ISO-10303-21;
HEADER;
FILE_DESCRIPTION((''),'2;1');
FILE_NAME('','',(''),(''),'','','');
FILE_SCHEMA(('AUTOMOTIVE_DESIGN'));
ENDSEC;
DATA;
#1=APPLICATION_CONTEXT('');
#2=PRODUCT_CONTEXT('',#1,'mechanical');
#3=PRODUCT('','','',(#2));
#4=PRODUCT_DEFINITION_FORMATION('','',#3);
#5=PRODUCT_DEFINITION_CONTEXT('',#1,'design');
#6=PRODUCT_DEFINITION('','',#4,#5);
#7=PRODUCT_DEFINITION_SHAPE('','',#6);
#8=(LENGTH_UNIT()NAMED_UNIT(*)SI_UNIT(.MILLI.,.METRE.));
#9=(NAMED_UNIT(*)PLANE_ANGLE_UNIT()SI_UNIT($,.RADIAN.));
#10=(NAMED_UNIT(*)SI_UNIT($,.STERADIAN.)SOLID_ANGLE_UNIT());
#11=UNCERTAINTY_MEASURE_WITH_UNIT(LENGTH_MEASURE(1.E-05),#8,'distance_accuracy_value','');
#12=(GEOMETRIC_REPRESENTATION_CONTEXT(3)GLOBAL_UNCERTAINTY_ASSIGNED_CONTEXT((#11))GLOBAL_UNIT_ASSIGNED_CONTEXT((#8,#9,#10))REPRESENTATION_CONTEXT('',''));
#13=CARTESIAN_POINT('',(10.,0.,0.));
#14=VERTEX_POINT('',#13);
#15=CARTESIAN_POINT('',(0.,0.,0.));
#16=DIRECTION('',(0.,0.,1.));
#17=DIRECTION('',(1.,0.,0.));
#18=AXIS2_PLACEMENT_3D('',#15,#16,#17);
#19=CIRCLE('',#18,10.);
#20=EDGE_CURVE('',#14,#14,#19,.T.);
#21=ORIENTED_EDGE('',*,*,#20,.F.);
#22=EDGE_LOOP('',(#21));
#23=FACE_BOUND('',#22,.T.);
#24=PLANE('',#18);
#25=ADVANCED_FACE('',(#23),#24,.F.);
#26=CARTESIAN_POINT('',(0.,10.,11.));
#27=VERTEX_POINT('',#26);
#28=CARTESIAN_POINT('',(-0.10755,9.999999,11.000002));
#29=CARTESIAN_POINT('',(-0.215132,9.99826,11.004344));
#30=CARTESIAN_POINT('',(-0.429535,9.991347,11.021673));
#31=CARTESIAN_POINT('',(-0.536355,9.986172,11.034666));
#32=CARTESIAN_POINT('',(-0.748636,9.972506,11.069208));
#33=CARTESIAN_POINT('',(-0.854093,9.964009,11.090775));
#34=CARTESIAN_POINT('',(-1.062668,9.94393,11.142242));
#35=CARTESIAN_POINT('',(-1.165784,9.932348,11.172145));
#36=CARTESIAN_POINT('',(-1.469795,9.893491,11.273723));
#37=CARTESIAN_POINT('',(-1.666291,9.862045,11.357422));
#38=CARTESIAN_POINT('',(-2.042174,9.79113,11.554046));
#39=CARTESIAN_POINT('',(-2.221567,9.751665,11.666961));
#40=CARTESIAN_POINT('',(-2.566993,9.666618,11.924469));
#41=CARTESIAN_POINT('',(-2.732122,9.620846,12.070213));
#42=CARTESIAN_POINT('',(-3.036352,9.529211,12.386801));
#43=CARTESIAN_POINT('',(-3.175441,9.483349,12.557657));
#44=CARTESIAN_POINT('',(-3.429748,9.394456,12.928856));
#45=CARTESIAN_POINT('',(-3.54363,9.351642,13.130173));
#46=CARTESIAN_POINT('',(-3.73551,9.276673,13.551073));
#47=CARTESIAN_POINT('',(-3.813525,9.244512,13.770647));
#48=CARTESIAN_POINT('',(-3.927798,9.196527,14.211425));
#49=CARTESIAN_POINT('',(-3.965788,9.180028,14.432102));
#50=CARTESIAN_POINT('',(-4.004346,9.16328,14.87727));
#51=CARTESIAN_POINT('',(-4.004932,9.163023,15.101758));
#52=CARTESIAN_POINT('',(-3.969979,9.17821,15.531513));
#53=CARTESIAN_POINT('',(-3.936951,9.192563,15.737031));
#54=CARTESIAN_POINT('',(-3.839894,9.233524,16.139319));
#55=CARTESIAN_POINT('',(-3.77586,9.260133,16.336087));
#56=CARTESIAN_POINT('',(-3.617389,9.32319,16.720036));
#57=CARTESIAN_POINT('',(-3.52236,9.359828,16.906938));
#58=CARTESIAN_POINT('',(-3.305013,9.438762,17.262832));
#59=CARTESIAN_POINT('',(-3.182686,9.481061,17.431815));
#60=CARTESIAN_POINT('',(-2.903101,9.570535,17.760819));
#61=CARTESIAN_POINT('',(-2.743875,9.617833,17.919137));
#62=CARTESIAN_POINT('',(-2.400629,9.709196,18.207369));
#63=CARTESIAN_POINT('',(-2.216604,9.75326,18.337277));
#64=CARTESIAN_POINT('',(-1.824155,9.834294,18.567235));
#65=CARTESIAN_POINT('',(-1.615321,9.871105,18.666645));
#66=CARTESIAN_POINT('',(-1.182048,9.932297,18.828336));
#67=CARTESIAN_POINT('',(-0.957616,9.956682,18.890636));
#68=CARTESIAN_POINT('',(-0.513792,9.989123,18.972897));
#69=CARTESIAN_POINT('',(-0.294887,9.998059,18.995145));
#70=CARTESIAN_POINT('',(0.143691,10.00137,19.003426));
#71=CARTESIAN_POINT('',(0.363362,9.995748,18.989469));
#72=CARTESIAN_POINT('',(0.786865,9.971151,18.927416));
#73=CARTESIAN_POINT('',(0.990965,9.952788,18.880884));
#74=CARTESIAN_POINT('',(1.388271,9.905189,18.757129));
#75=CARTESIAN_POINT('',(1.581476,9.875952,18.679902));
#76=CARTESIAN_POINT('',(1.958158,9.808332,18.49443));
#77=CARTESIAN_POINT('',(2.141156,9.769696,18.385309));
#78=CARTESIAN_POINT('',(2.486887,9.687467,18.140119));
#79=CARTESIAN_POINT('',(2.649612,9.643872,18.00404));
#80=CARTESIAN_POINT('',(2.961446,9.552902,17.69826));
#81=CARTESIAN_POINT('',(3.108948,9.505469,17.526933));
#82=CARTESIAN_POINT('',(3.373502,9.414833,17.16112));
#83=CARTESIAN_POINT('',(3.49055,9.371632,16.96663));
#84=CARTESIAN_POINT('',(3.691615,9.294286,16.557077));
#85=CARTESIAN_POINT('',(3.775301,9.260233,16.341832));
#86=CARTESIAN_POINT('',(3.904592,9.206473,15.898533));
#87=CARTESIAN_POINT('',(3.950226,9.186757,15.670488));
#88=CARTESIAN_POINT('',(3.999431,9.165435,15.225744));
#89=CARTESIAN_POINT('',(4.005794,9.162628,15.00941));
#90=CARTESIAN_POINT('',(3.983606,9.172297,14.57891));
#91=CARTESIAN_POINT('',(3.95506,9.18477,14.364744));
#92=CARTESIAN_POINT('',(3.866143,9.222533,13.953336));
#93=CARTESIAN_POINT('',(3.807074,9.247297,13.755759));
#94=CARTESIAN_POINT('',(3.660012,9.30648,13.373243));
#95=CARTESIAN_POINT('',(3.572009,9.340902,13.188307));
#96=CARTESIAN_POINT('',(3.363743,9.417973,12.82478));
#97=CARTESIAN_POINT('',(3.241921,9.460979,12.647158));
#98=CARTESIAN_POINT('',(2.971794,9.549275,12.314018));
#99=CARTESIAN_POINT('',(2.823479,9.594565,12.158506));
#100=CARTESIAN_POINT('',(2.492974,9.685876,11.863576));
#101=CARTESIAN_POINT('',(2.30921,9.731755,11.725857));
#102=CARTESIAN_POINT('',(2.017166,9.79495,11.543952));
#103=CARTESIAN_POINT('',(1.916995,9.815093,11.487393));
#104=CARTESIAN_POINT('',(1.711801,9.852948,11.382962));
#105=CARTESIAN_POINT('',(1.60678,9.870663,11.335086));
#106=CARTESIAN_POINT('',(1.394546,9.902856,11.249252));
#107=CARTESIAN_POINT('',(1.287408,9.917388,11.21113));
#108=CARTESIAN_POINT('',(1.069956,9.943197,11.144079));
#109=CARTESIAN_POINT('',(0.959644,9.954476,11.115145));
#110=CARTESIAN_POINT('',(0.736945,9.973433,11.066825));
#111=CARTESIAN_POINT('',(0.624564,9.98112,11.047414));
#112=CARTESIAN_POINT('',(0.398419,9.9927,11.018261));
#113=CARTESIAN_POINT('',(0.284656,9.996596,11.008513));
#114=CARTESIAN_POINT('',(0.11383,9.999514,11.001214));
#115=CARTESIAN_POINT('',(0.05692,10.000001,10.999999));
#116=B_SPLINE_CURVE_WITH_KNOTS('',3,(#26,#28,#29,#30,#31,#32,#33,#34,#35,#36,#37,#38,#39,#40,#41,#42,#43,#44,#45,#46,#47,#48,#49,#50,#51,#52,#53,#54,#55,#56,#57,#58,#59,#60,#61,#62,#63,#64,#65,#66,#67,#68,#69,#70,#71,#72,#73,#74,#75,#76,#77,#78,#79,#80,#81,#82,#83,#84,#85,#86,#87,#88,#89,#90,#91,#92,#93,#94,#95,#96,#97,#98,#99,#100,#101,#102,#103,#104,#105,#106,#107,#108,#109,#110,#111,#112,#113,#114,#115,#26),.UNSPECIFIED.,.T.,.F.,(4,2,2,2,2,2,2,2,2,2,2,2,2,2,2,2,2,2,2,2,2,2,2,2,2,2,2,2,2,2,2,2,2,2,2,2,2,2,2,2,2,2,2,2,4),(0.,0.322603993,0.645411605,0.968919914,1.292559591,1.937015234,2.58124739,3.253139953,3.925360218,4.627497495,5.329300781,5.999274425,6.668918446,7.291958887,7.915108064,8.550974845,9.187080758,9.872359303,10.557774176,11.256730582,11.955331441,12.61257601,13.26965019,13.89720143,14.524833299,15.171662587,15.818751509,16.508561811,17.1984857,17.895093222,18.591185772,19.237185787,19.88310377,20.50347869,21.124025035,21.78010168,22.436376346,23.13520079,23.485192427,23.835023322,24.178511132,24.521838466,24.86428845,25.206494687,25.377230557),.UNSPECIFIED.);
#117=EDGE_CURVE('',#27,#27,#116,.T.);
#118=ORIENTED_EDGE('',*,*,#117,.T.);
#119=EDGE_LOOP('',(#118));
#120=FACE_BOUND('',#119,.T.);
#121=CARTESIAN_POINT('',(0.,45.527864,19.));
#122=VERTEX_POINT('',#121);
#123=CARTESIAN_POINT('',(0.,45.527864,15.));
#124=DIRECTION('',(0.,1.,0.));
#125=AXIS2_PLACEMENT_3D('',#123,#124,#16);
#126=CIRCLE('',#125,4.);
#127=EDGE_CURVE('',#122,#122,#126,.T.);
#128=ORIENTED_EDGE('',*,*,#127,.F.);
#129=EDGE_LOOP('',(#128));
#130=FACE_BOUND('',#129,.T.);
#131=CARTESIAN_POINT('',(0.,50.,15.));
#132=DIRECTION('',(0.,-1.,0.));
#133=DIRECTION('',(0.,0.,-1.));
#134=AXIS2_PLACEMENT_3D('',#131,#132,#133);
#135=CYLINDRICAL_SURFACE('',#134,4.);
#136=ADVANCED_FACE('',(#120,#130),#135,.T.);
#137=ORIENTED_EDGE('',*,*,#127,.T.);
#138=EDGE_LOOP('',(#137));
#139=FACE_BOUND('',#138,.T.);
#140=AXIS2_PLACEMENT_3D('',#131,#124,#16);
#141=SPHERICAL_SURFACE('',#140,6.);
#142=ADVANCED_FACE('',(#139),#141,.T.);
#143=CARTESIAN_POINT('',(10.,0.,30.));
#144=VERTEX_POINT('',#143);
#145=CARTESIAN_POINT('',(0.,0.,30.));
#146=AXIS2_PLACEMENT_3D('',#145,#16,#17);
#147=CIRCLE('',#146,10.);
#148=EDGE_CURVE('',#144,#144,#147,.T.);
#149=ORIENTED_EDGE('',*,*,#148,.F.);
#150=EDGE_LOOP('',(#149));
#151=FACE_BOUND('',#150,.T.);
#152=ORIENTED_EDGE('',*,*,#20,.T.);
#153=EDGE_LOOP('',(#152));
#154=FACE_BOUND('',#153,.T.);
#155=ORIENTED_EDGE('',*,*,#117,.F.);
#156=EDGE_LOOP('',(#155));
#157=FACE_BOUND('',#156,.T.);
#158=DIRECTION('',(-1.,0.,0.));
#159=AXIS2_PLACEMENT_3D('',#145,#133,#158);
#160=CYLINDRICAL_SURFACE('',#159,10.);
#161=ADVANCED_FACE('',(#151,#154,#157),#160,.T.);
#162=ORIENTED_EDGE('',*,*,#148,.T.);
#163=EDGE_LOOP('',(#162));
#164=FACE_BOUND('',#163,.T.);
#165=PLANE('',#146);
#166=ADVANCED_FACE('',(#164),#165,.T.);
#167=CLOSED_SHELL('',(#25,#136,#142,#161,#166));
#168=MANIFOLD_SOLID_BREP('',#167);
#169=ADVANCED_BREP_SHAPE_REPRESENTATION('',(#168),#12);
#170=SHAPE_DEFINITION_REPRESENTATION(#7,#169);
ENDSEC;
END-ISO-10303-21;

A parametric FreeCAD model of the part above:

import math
import FreeCAD as App
import Part
import Sketcher
from FreeCAD import Vector

doc = App.newDocument("Part")
body = doc.addObject("PartDesign::Body", "Body")

# Sketch on XY plane
sketch1 = body.newObject("Sketcher::SketchObject", "Sketch")
sketch1.AttachmentSupport = (doc.getObject("XY_Plane"), [""])
sketch1.MapMode = "FlatFace"
sketch1.addGeometry(Part.Circle(Vector(0, 0, 0), Vector(0, 0, 1), 10), False)
sketch1.addConstraint([
    Sketcher.Constraint("Coincident", 0, 3, -1, 1),
    Sketcher.Constraint("Diameter", 0, 20.0),
])
pad1 = body.newObject("PartDesign::Pad", "Pad")
pad1.Profile = sketch1
pad1.Length = 30

# Sketch on XZ plane
sketch2 = body.newObject("Sketcher::SketchObject", "Sketch001")
sketch2.AttachmentSupport = (doc.getObject("XZ_Plane"), [""])
sketch2.MapMode = "FlatFace"
sketch2.addGeometry(Part.Circle(Vector(0, 15, 0), Vector(0, 0, 1), 4), False)
sketch2.addConstraint([
    Sketcher.Constraint("PointOnObject", 0, 3, -2),
    Sketcher.Constraint("Diameter", 0, 8.0),
    Sketcher.Constraint("DistanceY", -1, 1, 0, 3, 15.0),
])
pad2 = body.newObject("PartDesign::Pad", "Pad001")
pad2.Profile = sketch2
pad2.Length = 50
pad2.Reversed = True

# Sketch on XZ plane
sketch3 = body.newObject("Sketcher::SketchObject", "Sketch002")
sketch3.AttachmentSupport = (doc.getObject("XZ_Plane"), [""])
sketch3.MapMode = "FlatFace"
sketch3.AttachmentOffset = App.Placement(Vector(0, 0, -50), App.Rotation())
sketch3.addGeometry([
    Part.LineSegment(Vector(0, 9, 0), Vector(0, 21, 0)),
    Part.ArcOfCircle(Part.Circle(Vector(0, 15, 0), Vector(0, 0, 1), 6), math.radians(-90), math.radians(90)),
], False)
sketch3.addConstraint([
    Sketcher.Constraint("Coincident", 0, 1, 1, 1),
    Sketcher.Constraint("Coincident", 1, 2, 0, 2),
    Sketcher.Constraint("Vertical", 0),
    Sketcher.Constraint("PointOnObject", 1, 3, -2),
    Sketcher.Constraint("PointOnObject", 0, 1, -2),
    Sketcher.Constraint("Radius", 1, 6.0),
    Sketcher.Constraint("DistanceY", -1, 1, 1, 3, 15.0),
])
revolution = body.newObject("PartDesign::Revolution", "Revolution")
revolution.Profile = sketch3
revolution.ReferenceAxis = (sketch3, ["V_Axis"])
revolution.Angle = 360

doc.recompute()
